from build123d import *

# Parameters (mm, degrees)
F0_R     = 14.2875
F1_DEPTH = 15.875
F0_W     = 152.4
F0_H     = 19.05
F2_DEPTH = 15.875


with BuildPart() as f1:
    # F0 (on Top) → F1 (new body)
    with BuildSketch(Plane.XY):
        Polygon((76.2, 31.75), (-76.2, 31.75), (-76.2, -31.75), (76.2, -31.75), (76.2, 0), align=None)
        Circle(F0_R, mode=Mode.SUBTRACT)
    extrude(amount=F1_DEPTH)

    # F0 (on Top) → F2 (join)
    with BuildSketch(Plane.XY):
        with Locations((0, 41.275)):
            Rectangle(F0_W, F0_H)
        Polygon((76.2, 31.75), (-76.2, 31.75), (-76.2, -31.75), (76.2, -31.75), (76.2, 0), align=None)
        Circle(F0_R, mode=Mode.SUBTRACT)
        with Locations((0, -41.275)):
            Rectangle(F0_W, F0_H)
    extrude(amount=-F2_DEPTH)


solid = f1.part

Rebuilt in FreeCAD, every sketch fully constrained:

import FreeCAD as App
import Part
import Sketcher

V = App.Vector
Q = App.Units.Quantity


def add_polygon(sketch, points):
    """Adds a closed chain of lines whose ends are joined by coincident constraints."""
    first, n = sketch.GeometryCount, len(points)
    for a, b in zip(points, points[1:] + points[:1]):
        sketch.addGeometry(Part.LineSegment(App.Vector(*a, 0), App.Vector(*b, 0)), False)
    for i in range(n):
        sketch.addConstraint(Sketcher.Constraint("Coincident", first + i, 2, first + (i + 1) % n, 1))

doc = App.newDocument("Part")
params = doc.addObject("Spreadsheet::Sheet", "Params")
for row, (alias, value) in enumerate([
    ("sketch1_width", "6 in"),
    ("sketch1_diameter", "1.125 in"),
    ("sketch1_height", "2.5 in"),
    ("pad1_length", "0.625 in"),
    ("sketch2_width", "6 in"),
    ("sketch2_height", "4 in"),
    ("sketch2_diameter", "1.125 in"),
    ("pad2_length", "0.625 in"),
], start=1):
    params.set(f"A{row}", alias)
    params.set(f"B{row}", "=" + value)
    params.setAlias(f"B{row}", alias)

body = doc.addObject("PartDesign::Body", "Body")

sketch1 = doc.addObject("Sketcher::SketchObject", "Sketch")
body.addObject(sketch1)
sketch1.AttachmentSupport = (doc.XY_Plane, [""])
sketch1.MapMode = "FlatFace"
add_polygon(sketch1, [(76, 32), (-76, 32), (-76, -32), (76, -32)])
sketch1.addGeometry(Part.Circle(V(0, 0, 0), V(0, 0, 1), 14), False)
sketch1.addConstraint([
    Sketcher.Constraint("Horizontal", 0),
    Sketcher.Constraint("Vertical", 1),
    Sketcher.Constraint("Horizontal", 2),
    Sketcher.Constraint("Vertical", 3),
    Sketcher.Constraint("Coincident", 4, 3, -1, 1),
    Sketcher.Constraint("Symmetric", 0, 2, 2, 2, -1, 1),
    Sketcher.Constraint("DistanceX", 0, 2, 0, 1, Q("6 in")),
    Sketcher.Constraint("Diameter", 4, Q("1.125 in")),
    Sketcher.Constraint("DistanceY", 1, 2, 1, 1, Q("2.5 in")),
])
sketch1.setExpression("Constraints[10]", "Params.sketch1_width")
sketch1.setExpression("Constraints[11]", "Params.sketch1_diameter")
sketch1.setExpression("Constraints[12]", "Params.sketch1_height")
pad1 = doc.addObject("PartDesign::Pad", "Pad")
body.addObject(pad1)
pad1.Profile = sketch1
pad1.setExpression("Length", "Params.pad1_length")

sketch2 = doc.addObject("Sketcher::SketchObject", "Sketch001")
body.addObject(sketch2)
sketch2.AttachmentSupport = (doc.XY_Plane, [""])
sketch2.MapMode = "FlatFace"
add_polygon(sketch2, [(-76, 51), (-76, -51), (76, -51), (76, 51)])
sketch2.addGeometry(Part.Circle(V(0, 0, 0), V(0, 0, 1), 14), False)
sketch2.addConstraint([
    Sketcher.Constraint("Vertical", 0),
    Sketcher.Constraint("Horizontal", 1),
    Sketcher.Constraint("Vertical", 2),
    Sketcher.Constraint("Horizontal", 3),
    Sketcher.Constraint("Coincident", 4, 3, -1, 1),
    Sketcher.Constraint("Symmetric", 0, 2, 2, 2, -1, 1),
    Sketcher.Constraint("DistanceX", 1, 1, 1, 2, Q("6 in")),
    Sketcher.Constraint("DistanceY", 0, 2, 0, 1, Q("4 in")),
    Sketcher.Constraint("Diameter", 4, Q("1.125 in")),
])
sketch2.setExpression("Constraints[10]", "Params.sketch2_width")
sketch2.setExpression("Constraints[11]", "Params.sketch2_height")
sketch2.setExpression("Constraints[12]", "Params.sketch2_diameter")
pad2 = doc.addObject("PartDesign::Pad", "Pad001")
body.addObject(pad2)
pad2.Profile = sketch2
pad2.setExpression("Length", "Params.pad2_length")
pad2.Reversed = True

doc.recompute()
